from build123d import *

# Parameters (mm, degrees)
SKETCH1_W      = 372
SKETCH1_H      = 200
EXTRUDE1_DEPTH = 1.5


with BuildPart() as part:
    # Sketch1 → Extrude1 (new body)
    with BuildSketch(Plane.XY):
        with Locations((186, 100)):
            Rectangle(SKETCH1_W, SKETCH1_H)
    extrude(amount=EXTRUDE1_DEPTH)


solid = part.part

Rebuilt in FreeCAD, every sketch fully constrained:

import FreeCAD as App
import Part
import Sketcher


def add_polygon(sketch, points):
    """Adds a closed chain of lines whose ends are joined by coincident constraints."""
    first, n = sketch.GeometryCount, len(points)
    for a, b in zip(points, points[1:] + points[:1]):
        sketch.addGeometry(Part.LineSegment(App.Vector(*a, 0), App.Vector(*b, 0)), False)
    for i in range(n):
        sketch.addConstraint(Sketcher.Constraint("Coincident", first + i, 2, first + (i + 1) % n, 1))

doc = App.newDocument("Part")
params = doc.addObject("Spreadsheet::Sheet", "Params")
for row, (alias, value) in enumerate([
    ("sketch1_width", "372 mm"),
    ("sketch1_height", "200 mm"),
    ("pad1_length", "1.5 mm"),
], start=1):
    params.set(f"A{row}", alias)
    params.set(f"B{row}", "=" + value)
    params.setAlias(f"B{row}", alias)

body = doc.addObject("PartDesign::Body", "Body")

# Sketch on XY plane
sketch1 = doc.addObject("Sketcher::SketchObject", "Sketch")
body.addObject(sketch1)
sketch1.AttachmentSupport = (doc.XY_Plane, [""])
sketch1.MapMode = "FlatFace"
add_polygon(sketch1, [(0, 200), (0, 0), (372, 0), (372, 200)])  # lines 0-3
sketch1.addConstraint([
    Sketcher.Constraint("Vertical", 0),
    Sketcher.Constraint("Horizontal", 1),
    Sketcher.Constraint("Vertical", 2),
    Sketcher.Constraint("Horizontal", 3),
    Sketcher.Constraint("Coincident", 0, 2, -1, 1),
    Sketcher.Constraint("DistanceX", 1, 1, 1, 2, 372.0),
    Sketcher.Constraint("DistanceY", 0, 2, 0, 1, 200.0),
])
sketch1.setExpression("Constraints[9]", "Params.sketch1_width")
sketch1.setExpression("Constraints[10]", "Params.sketch1_height")
pad1 = doc.addObject("PartDesign::Pad", "Pad")
body.addObject(pad1)
pad1.Profile = sketch1
pad1.setExpression("Length", "Params.pad1_length")

doc.recompute()
